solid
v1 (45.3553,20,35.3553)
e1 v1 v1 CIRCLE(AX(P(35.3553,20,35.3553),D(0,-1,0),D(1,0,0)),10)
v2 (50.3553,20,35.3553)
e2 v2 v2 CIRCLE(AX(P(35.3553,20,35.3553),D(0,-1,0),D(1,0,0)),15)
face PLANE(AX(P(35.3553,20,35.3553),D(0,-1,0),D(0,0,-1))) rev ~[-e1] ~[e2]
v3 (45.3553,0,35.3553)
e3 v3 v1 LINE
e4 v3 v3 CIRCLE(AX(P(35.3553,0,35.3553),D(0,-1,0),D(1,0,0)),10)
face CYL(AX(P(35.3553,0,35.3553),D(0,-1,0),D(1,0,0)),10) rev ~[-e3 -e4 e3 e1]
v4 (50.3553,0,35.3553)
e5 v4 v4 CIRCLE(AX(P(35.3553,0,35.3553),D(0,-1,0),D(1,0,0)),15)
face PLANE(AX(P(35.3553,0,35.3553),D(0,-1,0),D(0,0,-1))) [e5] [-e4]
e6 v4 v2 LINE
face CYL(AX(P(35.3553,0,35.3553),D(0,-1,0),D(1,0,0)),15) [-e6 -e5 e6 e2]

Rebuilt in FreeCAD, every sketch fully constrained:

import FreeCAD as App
import Part
import Sketcher
from FreeCAD import Vector

doc = App.newDocument("Part")
body = doc.addObject("PartDesign::Body", "Body")

sketch1 = body.newObject("Sketcher::SketchObject", "Sketch")
sketch1.AttachmentSupport = (doc.getObject("XZ_Plane"), [""])
sketch1.MapMode = "FlatFace"
sketch1.addGeometry(Part.Circle(Vector(35, 35, 0), Vector(0, 0, 1), 15), False)
sketch1.addGeometry(Part.Circle(Vector(35, 35, 0), Vector(0, 0, 1), 10), False)
sketch1.addConstraint(Sketcher.Constraint("Coincident", 1, 3, 0, 3))
sketch1.addConstraint(Sketcher.Constraint("Diameter", 0, 30.0))
sketch1.addConstraint(Sketcher.Constraint("Diameter", 1, 20.0))
sketch1.addConstraint(Sketcher.Constraint("DistanceX", -1, 1, 0, 3, 35.3553))
sketch1.addConstraint(Sketcher.Constraint("DistanceY", -1, 1, 0, 3, 35.3553))
pad1 = body.newObject("PartDesign::Pad", "Pad")
pad1.Profile = sketch1
pad1.Length = 20
pad1.Reversed = True

doc.recompute()
